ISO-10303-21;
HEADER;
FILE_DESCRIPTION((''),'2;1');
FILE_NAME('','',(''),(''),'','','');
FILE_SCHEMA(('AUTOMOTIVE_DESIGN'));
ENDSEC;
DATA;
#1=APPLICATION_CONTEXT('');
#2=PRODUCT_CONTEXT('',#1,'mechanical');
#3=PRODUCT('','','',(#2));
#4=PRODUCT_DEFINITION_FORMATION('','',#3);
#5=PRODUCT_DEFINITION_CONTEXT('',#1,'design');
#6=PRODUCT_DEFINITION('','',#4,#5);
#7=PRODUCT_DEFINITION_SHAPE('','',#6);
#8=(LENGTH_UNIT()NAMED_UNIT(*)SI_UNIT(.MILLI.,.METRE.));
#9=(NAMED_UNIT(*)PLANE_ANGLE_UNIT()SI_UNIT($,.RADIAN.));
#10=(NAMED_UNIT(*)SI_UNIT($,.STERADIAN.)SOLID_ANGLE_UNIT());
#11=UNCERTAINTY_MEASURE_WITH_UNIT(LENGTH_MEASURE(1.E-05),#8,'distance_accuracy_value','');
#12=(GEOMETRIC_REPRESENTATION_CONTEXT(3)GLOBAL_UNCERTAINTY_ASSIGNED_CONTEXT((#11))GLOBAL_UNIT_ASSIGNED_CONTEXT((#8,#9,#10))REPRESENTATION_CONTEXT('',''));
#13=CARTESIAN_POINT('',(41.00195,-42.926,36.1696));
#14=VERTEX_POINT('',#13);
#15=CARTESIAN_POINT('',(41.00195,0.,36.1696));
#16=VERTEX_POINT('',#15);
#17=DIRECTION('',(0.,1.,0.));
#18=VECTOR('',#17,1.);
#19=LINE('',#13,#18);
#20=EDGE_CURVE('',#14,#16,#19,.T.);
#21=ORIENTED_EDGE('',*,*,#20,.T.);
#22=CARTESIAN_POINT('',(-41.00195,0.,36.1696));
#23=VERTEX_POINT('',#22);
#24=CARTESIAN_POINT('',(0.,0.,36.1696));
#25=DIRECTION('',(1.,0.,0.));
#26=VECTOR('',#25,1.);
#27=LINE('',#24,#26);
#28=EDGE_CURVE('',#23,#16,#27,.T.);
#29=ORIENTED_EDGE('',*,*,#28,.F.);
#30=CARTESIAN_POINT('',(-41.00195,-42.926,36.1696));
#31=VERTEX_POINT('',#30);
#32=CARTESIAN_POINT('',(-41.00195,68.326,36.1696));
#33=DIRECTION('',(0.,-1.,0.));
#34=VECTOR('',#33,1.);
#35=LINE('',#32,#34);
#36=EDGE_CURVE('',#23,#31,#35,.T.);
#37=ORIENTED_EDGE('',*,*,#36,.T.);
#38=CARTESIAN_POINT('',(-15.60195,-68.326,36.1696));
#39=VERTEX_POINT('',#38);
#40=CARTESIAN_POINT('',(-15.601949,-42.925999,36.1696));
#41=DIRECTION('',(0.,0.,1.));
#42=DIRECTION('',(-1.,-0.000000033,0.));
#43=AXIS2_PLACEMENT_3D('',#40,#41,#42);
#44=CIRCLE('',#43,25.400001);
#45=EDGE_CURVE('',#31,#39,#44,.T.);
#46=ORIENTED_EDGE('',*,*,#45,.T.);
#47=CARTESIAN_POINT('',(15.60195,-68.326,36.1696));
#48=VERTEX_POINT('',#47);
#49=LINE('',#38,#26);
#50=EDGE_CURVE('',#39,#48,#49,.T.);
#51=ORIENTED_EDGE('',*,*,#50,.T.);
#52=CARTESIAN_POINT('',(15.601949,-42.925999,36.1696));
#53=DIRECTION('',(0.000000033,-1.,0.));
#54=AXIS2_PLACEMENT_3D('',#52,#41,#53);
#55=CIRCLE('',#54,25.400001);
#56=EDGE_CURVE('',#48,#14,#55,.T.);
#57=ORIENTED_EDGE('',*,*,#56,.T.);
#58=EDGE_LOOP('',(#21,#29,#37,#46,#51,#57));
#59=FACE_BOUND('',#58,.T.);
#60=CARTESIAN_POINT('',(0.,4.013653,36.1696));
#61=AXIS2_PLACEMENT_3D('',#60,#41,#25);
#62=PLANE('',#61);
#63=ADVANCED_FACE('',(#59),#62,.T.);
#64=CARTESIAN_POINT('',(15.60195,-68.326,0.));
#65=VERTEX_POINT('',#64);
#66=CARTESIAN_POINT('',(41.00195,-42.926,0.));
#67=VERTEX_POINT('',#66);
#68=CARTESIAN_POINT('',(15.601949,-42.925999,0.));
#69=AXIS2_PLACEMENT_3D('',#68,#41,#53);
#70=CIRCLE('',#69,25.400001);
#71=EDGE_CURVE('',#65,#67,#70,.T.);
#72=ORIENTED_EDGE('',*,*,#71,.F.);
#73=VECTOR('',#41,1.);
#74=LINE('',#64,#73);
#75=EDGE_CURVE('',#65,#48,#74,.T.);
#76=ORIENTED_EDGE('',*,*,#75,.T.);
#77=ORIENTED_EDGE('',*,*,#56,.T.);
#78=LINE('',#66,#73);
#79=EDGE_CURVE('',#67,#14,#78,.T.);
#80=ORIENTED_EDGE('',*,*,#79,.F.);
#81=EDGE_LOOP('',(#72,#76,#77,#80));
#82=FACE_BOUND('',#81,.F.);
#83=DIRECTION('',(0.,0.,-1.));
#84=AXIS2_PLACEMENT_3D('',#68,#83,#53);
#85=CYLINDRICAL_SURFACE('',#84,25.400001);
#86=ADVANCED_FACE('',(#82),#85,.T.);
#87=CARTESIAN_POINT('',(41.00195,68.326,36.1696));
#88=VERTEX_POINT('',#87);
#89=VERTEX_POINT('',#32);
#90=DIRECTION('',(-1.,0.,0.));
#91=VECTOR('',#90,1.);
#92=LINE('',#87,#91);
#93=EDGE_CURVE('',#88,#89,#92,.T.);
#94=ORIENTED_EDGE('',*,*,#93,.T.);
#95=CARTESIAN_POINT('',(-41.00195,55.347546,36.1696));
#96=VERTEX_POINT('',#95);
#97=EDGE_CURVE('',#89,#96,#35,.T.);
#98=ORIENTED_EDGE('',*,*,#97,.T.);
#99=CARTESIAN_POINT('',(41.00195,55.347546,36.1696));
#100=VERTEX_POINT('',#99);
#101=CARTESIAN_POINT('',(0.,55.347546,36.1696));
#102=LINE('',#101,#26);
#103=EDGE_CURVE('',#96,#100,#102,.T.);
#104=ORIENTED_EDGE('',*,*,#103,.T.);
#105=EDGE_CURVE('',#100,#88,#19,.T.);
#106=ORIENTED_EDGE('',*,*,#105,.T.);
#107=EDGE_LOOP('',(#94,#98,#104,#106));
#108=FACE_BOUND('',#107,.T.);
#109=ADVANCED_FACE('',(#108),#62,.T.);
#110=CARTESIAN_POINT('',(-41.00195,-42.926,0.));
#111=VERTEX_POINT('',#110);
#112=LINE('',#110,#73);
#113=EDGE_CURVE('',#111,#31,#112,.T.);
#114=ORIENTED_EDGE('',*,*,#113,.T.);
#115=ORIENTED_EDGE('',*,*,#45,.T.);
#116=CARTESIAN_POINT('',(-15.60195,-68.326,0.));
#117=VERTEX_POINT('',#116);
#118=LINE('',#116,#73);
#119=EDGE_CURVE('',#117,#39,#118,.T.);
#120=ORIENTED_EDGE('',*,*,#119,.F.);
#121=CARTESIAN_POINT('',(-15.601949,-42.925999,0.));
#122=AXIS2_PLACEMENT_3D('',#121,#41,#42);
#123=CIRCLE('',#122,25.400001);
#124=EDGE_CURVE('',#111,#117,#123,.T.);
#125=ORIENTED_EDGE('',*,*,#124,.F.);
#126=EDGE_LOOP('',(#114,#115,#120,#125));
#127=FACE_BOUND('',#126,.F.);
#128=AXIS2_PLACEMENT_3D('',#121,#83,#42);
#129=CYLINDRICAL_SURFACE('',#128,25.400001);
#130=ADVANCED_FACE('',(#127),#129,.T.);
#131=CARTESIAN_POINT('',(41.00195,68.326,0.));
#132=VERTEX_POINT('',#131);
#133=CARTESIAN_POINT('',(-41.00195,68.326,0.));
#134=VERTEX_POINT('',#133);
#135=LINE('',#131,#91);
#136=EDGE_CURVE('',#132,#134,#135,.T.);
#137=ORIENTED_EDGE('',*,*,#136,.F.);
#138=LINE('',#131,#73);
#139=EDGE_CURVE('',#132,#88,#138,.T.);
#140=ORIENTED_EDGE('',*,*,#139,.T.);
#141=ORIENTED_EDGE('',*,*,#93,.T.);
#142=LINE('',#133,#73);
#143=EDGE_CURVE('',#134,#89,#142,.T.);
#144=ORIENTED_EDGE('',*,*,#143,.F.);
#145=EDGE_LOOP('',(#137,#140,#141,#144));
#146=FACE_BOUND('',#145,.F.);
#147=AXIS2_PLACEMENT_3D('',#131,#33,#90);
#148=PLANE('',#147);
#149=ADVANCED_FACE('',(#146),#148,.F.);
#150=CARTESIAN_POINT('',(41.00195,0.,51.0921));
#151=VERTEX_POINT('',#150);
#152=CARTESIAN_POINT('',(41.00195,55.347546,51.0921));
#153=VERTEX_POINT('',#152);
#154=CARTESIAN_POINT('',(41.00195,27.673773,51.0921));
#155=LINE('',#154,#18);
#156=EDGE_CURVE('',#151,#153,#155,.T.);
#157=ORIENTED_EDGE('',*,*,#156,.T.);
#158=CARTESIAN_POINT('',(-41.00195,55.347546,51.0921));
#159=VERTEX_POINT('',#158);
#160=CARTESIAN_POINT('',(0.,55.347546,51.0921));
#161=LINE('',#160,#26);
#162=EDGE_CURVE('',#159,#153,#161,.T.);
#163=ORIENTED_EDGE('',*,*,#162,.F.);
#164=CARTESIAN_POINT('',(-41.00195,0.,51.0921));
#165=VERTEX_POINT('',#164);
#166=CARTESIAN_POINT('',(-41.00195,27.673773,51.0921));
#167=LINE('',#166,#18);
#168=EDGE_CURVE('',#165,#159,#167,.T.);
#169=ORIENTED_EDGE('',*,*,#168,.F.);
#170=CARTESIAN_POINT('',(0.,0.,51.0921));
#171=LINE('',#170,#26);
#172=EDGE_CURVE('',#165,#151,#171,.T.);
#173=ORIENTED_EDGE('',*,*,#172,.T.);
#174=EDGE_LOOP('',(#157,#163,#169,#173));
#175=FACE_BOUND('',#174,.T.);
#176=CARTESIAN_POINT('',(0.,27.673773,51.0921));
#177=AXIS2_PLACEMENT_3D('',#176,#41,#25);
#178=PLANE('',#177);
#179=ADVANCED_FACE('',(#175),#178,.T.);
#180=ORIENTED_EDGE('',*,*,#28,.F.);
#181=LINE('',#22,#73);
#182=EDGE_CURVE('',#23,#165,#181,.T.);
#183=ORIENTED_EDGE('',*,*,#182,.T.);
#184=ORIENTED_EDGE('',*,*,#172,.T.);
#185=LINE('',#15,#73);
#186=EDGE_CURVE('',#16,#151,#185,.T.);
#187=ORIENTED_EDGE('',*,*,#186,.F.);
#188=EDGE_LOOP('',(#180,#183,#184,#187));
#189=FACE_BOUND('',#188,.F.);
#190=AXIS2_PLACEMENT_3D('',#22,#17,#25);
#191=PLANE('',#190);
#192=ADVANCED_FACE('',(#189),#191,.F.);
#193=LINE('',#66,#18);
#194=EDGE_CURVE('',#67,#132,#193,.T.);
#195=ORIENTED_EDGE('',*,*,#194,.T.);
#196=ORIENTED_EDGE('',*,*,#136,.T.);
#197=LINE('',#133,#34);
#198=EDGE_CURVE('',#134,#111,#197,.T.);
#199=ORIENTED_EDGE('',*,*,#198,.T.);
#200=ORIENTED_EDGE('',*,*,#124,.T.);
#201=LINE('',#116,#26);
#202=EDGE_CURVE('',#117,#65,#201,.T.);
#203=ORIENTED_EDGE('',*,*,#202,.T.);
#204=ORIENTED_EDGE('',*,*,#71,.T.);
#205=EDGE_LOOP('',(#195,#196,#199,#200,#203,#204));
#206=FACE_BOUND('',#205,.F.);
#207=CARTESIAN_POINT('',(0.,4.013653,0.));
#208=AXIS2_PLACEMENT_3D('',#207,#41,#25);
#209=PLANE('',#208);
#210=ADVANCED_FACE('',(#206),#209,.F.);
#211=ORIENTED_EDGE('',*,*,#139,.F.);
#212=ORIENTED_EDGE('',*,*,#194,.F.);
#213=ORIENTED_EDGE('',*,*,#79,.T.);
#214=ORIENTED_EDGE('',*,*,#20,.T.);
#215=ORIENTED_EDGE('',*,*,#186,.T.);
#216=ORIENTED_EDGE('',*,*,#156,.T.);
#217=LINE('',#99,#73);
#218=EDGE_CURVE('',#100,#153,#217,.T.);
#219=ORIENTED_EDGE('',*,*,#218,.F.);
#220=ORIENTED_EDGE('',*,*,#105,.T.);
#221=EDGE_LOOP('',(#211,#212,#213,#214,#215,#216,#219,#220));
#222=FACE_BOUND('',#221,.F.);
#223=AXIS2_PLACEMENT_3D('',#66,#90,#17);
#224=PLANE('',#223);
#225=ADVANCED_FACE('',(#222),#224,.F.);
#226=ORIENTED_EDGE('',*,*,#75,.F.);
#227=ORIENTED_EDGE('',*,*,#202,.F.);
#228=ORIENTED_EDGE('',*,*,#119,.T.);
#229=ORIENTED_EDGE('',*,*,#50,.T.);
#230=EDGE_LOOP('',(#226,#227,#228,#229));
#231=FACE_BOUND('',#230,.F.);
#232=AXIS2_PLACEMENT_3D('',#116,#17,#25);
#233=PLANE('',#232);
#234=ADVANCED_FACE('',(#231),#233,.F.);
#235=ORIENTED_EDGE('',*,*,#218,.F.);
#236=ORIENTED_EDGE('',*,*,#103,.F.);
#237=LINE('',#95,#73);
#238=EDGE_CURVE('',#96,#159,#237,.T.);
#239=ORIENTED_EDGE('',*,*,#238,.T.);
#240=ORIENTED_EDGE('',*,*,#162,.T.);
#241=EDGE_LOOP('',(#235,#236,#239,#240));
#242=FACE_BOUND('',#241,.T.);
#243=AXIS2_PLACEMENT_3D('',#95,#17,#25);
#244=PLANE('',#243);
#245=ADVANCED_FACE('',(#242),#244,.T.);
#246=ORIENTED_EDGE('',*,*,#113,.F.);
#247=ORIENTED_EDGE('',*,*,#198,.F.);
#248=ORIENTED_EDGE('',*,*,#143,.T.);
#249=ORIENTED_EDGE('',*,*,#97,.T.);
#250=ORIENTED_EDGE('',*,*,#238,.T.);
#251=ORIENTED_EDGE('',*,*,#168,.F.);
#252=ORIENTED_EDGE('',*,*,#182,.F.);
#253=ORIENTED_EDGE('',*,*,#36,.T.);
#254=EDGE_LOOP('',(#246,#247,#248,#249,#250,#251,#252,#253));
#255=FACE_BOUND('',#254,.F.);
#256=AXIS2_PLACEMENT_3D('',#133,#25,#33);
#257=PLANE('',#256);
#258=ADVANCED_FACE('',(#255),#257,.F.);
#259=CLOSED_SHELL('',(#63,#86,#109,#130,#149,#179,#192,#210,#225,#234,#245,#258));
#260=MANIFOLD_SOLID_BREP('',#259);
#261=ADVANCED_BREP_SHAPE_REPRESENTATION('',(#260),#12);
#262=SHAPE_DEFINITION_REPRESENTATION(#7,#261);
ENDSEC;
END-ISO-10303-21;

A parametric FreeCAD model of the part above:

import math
import FreeCAD as App
import Part
import Sketcher
Q = App.Units.Quantity

doc = App.newDocument("Part")
body = doc.addObject("PartDesign::Body", "Body")

# Sketch on XY plane
sketch1 = body.newObject("Sketcher::SketchObject", "Sketch")
sketch1.AttachmentSupport = (doc.getObject("XY_Plane"), [""])
sketch1.MapMode = "FlatFace"
sketch1.addGeometry([
    Part.LineSegment(App.Vector(-16, -68, 0), App.Vector(16, -68, 0)),  # 0
    Part.ArcOfCircle(Part.Circle(App.Vector(16, -43, 0), App.Vector(0, 0, 1), 25), math.radians(-90), math.radians(0)),  # 1
    Part.LineSegment(App.Vector(41, -43, 0), App.Vector(41, 68, 0)),  # 2
    Part.LineSegment(App.Vector(41, 68, 0), App.Vector(-41, 68, 0)),  # 3
    Part.LineSegment(App.Vector(-41, 68, 0), App.Vector(-41, -43, 0)),  # 4
    Part.ArcOfCircle(Part.Circle(App.Vector(-16, -43, 0), App.Vector(0, 0, 1), 25), math.radians(-180), math.radians(-90)),  # 5
], False)
sketch1.addConstraint([
    Sketcher.Constraint("Tangent", 0, 2, 1, 1),
    Sketcher.Constraint("Tangent", 1, 2, 2, 1),
    Sketcher.Constraint("Coincident", 2, 2, 3, 1),
    Sketcher.Constraint("Coincident", 3, 2, 4, 1),
    Sketcher.Constraint("Tangent", 4, 2, 5, 1),
    Sketcher.Constraint("Tangent", 5, 2, 0, 1),
    Sketcher.Constraint("Horizontal", 0),
    Sketcher.Constraint("Vertical", 2),
    Sketcher.Constraint("Horizontal", 3),
    Sketcher.Constraint("Vertical", 4),
    Sketcher.Constraint("Equal", 1, 5),
    Sketcher.Constraint("Radius", 1, Q("1 in")),
    Sketcher.Constraint("DistanceY", 2, 1, 2, 2, Q("4.38 in")),
    Sketcher.Constraint("DistanceY", 1, 3, -1, 1, Q("1.69 in")),
    Sketcher.Constraint("DistanceX", 0, 1, 0, 2, Q("1.2285 in")),
    Sketcher.Constraint("DistanceX", -1, 1, 1, 3, Q("15.601949 mm")),
])
pad1 = body.newObject("PartDesign::Pad", "Pad")
pad1.Profile = sketch1
pad1.Length = Q("1.424 in")

# Sketch on XY plane
sketch2 = body.newObject("Sketcher::SketchObject", "Sketch001")
sketch2.AttachmentSupport = (doc.getObject("XY_Plane"), [""])
sketch2.MapMode = "FlatFace"
sketch2.AttachmentOffset = App.Placement(App.Vector(0, 0, 1.424 * 25.4), App.Rotation())
sketch2.addGeometry([
    Part.LineSegment(App.Vector(-41, 55, 0), App.Vector(-41, 0, 0)),
    Part.LineSegment(App.Vector(-41, 0, 0), App.Vector(41, 0, 0)),
    Part.LineSegment(App.Vector(41, 0, 0), App.Vector(41, 55, 0)),
    Part.LineSegment(App.Vector(41, 55, 0), App.Vector(-41, 55, 0)),
], False)
sketch2.addConstraint([
    Sketcher.Constraint("Coincident", 0, 2, 1, 1),
    Sketcher.Constraint("Coincident", 1, 2, 2, 1),
    Sketcher.Constraint("Coincident", 2, 2, 3, 1),
    Sketcher.Constraint("Coincident", 3, 2, 0, 1),
    Sketcher.Constraint("Vertical", 0),
    Sketcher.Constraint("Horizontal", 1),
    Sketcher.Constraint("Vertical", 2),
    Sketcher.Constraint("Horizontal", 3),
    Sketcher.Constraint("Symmetric", 0, 2, 1, 2, -1, 1),
    Sketcher.Constraint("DistanceX", 1, 1, 1, 2, Q("3.2285 in")),
    Sketcher.Constraint("DistanceY", 0, 2, 0, 1, Q("55.347547 mm")),
])
pad2 = body.newObject("PartDesign::Pad", "Pad001")
pad2.Profile = sketch2
pad2.Length = Q("0.5875 in")

doc.recompute()
